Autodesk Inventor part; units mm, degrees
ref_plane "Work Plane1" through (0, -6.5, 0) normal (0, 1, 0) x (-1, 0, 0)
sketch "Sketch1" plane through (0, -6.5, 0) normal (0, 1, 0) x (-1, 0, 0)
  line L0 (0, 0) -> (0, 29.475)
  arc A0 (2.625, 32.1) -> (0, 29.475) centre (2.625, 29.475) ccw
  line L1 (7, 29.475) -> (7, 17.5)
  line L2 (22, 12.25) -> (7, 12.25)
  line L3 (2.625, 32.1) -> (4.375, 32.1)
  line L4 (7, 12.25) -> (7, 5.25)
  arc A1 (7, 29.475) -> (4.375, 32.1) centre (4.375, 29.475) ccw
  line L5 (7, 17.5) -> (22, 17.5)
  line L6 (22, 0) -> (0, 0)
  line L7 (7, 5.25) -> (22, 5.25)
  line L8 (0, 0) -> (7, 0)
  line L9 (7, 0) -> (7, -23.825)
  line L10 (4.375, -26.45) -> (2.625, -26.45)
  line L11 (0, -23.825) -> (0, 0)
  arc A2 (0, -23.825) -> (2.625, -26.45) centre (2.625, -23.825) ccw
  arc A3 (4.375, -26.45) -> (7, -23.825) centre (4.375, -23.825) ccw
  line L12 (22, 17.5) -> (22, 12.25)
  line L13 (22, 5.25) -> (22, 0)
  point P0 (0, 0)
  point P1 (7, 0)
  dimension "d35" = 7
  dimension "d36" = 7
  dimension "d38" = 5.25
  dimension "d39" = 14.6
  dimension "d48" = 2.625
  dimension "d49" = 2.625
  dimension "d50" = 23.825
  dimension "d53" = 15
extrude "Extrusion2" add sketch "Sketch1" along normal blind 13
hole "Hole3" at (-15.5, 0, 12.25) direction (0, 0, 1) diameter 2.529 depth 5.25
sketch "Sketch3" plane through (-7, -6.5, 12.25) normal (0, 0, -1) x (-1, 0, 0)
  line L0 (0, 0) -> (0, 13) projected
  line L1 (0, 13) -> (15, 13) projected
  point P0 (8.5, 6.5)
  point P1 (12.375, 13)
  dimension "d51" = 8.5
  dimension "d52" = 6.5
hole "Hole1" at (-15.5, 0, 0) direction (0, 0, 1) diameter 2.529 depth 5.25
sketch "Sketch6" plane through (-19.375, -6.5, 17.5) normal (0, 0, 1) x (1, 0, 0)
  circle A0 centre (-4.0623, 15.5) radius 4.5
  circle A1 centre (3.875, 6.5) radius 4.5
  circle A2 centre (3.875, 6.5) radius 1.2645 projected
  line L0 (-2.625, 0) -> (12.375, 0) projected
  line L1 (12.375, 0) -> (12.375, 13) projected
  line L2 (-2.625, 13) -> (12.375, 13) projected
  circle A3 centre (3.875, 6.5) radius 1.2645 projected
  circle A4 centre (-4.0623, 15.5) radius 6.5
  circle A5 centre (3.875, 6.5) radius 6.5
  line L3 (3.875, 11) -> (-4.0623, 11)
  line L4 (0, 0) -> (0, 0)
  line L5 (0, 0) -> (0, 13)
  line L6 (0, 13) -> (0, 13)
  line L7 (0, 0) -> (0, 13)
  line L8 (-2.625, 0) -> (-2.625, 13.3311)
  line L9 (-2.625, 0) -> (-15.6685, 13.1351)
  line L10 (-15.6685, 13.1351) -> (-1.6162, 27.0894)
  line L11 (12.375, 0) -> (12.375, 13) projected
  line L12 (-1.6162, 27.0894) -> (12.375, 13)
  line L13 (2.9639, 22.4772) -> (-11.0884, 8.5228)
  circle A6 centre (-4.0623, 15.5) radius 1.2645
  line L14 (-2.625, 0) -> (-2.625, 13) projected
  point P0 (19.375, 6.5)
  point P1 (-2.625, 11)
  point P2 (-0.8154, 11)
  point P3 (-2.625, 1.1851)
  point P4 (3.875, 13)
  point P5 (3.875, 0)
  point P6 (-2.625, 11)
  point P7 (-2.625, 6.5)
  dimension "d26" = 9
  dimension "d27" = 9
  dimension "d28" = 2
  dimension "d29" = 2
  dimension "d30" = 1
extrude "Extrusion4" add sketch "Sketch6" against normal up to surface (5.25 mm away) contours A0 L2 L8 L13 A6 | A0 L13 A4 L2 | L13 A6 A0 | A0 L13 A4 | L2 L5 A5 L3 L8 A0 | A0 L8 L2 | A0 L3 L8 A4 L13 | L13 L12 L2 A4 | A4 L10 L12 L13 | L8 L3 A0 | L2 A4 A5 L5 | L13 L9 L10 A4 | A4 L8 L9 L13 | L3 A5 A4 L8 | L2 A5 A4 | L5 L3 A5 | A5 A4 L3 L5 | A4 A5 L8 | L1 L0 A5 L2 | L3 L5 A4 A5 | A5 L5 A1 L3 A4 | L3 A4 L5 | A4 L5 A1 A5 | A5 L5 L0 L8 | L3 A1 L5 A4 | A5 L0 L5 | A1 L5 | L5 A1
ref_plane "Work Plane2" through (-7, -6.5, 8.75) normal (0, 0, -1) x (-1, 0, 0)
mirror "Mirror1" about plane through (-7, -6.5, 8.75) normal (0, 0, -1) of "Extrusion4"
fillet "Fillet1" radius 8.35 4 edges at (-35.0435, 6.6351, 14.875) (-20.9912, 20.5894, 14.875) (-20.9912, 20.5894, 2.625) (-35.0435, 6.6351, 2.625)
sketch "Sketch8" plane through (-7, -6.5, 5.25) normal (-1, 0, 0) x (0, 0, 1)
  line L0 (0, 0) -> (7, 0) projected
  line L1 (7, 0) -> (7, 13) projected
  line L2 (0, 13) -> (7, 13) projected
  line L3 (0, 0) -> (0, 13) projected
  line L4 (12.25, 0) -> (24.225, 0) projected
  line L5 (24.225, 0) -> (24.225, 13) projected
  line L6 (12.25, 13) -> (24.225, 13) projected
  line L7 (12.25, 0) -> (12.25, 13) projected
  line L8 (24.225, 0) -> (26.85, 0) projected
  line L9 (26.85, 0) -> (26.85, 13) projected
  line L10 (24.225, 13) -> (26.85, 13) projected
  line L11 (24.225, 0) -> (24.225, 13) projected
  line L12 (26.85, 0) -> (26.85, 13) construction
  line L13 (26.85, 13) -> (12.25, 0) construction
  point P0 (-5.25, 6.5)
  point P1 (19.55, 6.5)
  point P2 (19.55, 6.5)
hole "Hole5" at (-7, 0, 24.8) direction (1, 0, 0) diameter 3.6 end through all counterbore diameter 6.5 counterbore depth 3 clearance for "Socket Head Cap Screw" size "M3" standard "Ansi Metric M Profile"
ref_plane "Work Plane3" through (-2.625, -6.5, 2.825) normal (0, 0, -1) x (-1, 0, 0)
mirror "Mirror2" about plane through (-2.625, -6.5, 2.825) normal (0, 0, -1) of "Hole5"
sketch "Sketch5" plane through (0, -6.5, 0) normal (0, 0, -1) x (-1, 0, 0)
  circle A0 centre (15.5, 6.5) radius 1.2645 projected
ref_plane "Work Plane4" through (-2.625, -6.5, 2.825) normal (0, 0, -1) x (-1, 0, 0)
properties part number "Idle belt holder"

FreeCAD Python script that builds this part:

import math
import FreeCAD as App
import Part
import Sketcher

V = App.Vector
Q = App.Units.Quantity


def edges_at(feature, points):
    """Names of the edges that pass closest to the given points."""
    edges = feature.Shape.Edges
    near = lambda p: min(range(len(edges)), key=lambda i: edges[i].distToShape(Part.Vertex(*p))[0])
    return sorted({f"Edge{near(p) + 1}" for p in points})


def add_polygon(sketch, points):
    """Adds a closed chain of lines whose ends are joined by coincident constraints."""
    first, n = sketch.GeometryCount, len(points)
    for a, b in zip(points, points[1:] + points[:1]):
        sketch.addGeometry(Part.LineSegment(App.Vector(*a, 0), App.Vector(*b, 0)), False)
    for i in range(n):
        sketch.addConstraint(Sketcher.Constraint("Coincident", first + i, 2, first + (i + 1) % n, 1))

doc = App.newDocument("Part")
body = doc.addObject("PartDesign::Body", "Body")

# Sketch on XZ plane
sketch1 = doc.addObject("Sketcher::SketchObject", "Sketch")
body.addObject(sketch1)
sketch1.AttachmentSupport = (doc.XZ_Plane, [""])
sketch1.MapMode = "FlatFace"
sketch1.AttachmentOffset = App.Placement(V(0, 0, 6.5), App.Rotation())
sketch1.addGeometry(Part.LineSegment(V(0, 29.5, 0), V(0, -23.8, 0)), False)
sketch1.addGeometry(Part.ArcOfCircle(Part.Circle(V(-2.6, -23.8, 0), V(0, 0, 1), 2.6), math.radians(-90), math.radians(0)), False)
sketch1.addGeometry(Part.LineSegment(V(-2.6, -26.4, 0), V(-4.4, -26.4, 0)), False)
sketch1.addGeometry(Part.ArcOfCircle(Part.Circle(V(-4.4, -23.8, 0), V(0, 0, 1), 2.6), math.radians(180), math.radians(270)), False)
sketch1.addGeometry(Part.LineSegment(V(-7, -23.8, 0), V(-7, 0, 0)), False)
sketch1.addGeometry(Part.LineSegment(V(-7, 0, 0), V(-22, 0, 0)), False)
sketch1.addGeometry(Part.LineSegment(V(-22, 0, 0), V(-22, 5.2, 0)), False)
sketch1.addGeometry(Part.LineSegment(V(-22, 5.2, 0), V(-7, 5.2, 0)), False)
sketch1.addGeometry(Part.LineSegment(V(-7, 5.2, 0), V(-7, 12.2, 0)), False)
sketch1.addGeometry(Part.LineSegment(V(-7, 12.2, 0), V(-22, 12.2, 0)), False)
sketch1.addGeometry(Part.LineSegment(V(-22, 12.2, 0), V(-22, 17.5, 0)), False)
sketch1.addGeometry(Part.LineSegment(V(-22, 17.5, 0), V(-7, 17.5, 0)), False)
sketch1.addGeometry(Part.LineSegment(V(-7, 17.5, 0), V(-7, 29.5, 0)), False)
sketch1.addGeometry(Part.ArcOfCircle(Part.Circle(V(-4.4, 29.5, 0), V(0, 0, 1), 2.6), math.radians(90), math.radians(180)), False)
sketch1.addGeometry(Part.LineSegment(V(-4.4, 32.1, 0), V(-2.6, 32.1, 0)), False)
sketch1.addGeometry(Part.ArcOfCircle(Part.Circle(V(-2.6, 29.5, 0), V(0, 0, 1), 2.6), math.radians(0), math.radians(90)), False)
sketch1.addConstraint(Sketcher.Constraint("Tangent", 0, 2, 1, 2))
sketch1.addConstraint(Sketcher.Constraint("Tangent", 1, 1, 2, 1))
sketch1.addConstraint(Sketcher.Constraint("Tangent", 2, 2, 3, 2))
sketch1.addConstraint(Sketcher.Constraint("Tangent", 3, 1, 4, 1))
sketch1.addConstraint(Sketcher.Constraint("Coincident", 4, 2, 5, 1))
sketch1.addConstraint(Sketcher.Constraint("Coincident", 5, 2, 6, 1))
sketch1.addConstraint(Sketcher.Constraint("Coincident", 6, 2, 7, 1))
sketch1.addConstraint(Sketcher.Constraint("Coincident", 7, 2, 8, 1))
sketch1.addConstraint(Sketcher.Constraint("Coincident", 8, 2, 9, 1))
sketch1.addConstraint(Sketcher.Constraint("Coincident", 9, 2, 10, 1))
sketch1.addConstraint(Sketcher.Constraint("Coincident", 10, 2, 11, 1))
sketch1.addConstraint(Sketcher.Constraint("Coincident", 11, 2, 12, 1))
sketch1.addConstraint(Sketcher.Constraint("Tangent", 12, 2, 13, 2))
sketch1.addConstraint(Sketcher.Constraint("Tangent", 13, 1, 14, 1))
sketch1.addConstraint(Sketcher.Constraint("Tangent", 14, 2, 15, 2))
sketch1.addConstraint(Sketcher.Constraint("Tangent", 15, 1, 0, 1))
sketch1.addConstraint(Sketcher.Constraint("Vertical", 0))
sketch1.addConstraint(Sketcher.Constraint("Horizontal", 2))
sketch1.addConstraint(Sketcher.Constraint("Vertical", 4))
sketch1.addConstraint(Sketcher.Constraint("Horizontal", 5))
sketch1.addConstraint(Sketcher.Constraint("Vertical", 6))
sketch1.addConstraint(Sketcher.Constraint("Horizontal", 7))
sketch1.addConstraint(Sketcher.Constraint("Vertical", 8))
sketch1.addConstraint(Sketcher.Constraint("Horizontal", 9))
sketch1.addConstraint(Sketcher.Constraint("Vertical", 10))
sketch1.addConstraint(Sketcher.Constraint("Horizontal", 11))
sketch1.addConstraint(Sketcher.Constraint("Vertical", 12))
sketch1.addConstraint(Sketcher.Constraint("Horizontal", 14))
sketch1.addConstraint(Sketcher.Constraint("Equal", 1, 3))
sketch1.addConstraint(Sketcher.Constraint("Equal", 3, 13))
sketch1.addConstraint(Sketcher.Constraint("Equal", 13, 15))
sketch1.addConstraint(Sketcher.Constraint("PointOnObject", 0, 2, -2))
sketch1.addConstraint(Sketcher.Constraint("PointOnObject", 4, 2, -1))
sketch1.addConstraint(Sketcher.Constraint("Vertical", 3, 3, 13, 3))
sketch1.addConstraint(Sketcher.Constraint("Vertical", 4, 2, 7, 2))
sketch1.addConstraint(Sketcher.Constraint("Vertical", 6, 2, 9, 2))
sketch1.addConstraint(Sketcher.Constraint("Equal", 6, 10))
sketch1.addConstraint(Sketcher.Constraint("DistanceX", 5, 2, 5, 1, 15.0))
sketch1.addConstraint(Sketcher.Constraint("DistanceY", 8, 1, 8, 2, 7.0))
sketch1.addConstraint(Sketcher.Constraint("DistanceX", 3, 1, -1, 1, 7.0))
sketch1.addConstraint(Sketcher.Constraint("Radius", 1, 2.625))
sketch1.addConstraint(Sketcher.Constraint("DistanceY", 6, 1, 6, 2, 5.25))
sketch1.addConstraint(Sketcher.Constraint("DistanceY", 11, 2, 13, 1, 14.6))
sketch1.addConstraint(Sketcher.Constraint("DistanceY", 4, 1, 4, 2, 23.825))
pad1 = doc.addObject("PartDesign::Pad", "Pad")
body.addObject(pad1)
pad1.Profile = sketch1
pad1.Length = 13
pad1.Reversed = True

# Sketch on XY plane
sketch2 = doc.addObject("Sketcher::SketchObject", "Sketch001")
body.addObject(sketch2)
sketch2.AttachmentSupport = (doc.XY_Plane, [""])
sketch2.MapMode = "FlatFace"
sketch2.AttachmentOffset = App.Placement(V(0, 0, 12.25), App.Rotation())
sketch2.addGeometry(Part.Circle(V(-15.5, 0, 0), V(0, 0, 1), 1.3), False)
sketch2.addConstraint(Sketcher.Constraint("PointOnObject", 0, 3, -1))
sketch2.addConstraint(Sketcher.Constraint("Diameter", 0, 2.529))
sketch2.addConstraint(Sketcher.Constraint("DistanceX", 0, 3, -1, 1, 15.5))
doc.recompute()
hole = doc.addObject("PartDesign::Hole", "Hole")
body.addObject(hole)
hole.Profile = sketch2
hole.ThreadType = "None"
hole.Diameter = 2.529
hole.DepthType = "Dimension"
hole.Depth = 5.25
hole.DrillPoint = "Flat"
hole.Reversed = True

# Sketch on XY plane
sketch3 = doc.addObject("Sketcher::SketchObject", "Sketch002")
body.addObject(sketch3)
sketch3.AttachmentSupport = (doc.XY_Plane, [""])
sketch3.MapMode = "FlatFace"
sketch3.addGeometry(Part.Circle(V(-15.5, 0, 0), V(0, 0, 1), 1.3), False)
sketch3.addConstraint(Sketcher.Constraint("PointOnObject", 0, 3, -1))
sketch3.addConstraint(Sketcher.Constraint("Diameter", 0, 2.529))
sketch3.addConstraint(Sketcher.Constraint("DistanceX", 0, 3, -1, 1, 15.5))
doc.recompute()
hole2 = doc.addObject("PartDesign::Hole", "Hole001")
body.addObject(hole2)
hole2.Profile = sketch3
hole2.ThreadType = "None"
hole2.Diameter = 2.529
hole2.DepthType = "Dimension"
hole2.Depth = 5.25
hole2.DrillPoint = "Flat"
hole2.Reversed = True

# Sketch on XY plane
sketch4 = doc.addObject("Sketcher::SketchObject", "Sketch003")
body.addObject(sketch4)
sketch4.AttachmentSupport = (doc.XY_Plane, [""])
sketch4.MapMode = "FlatFace"
sketch4.AttachmentOffset = App.Placement(V(0, 0, 17.5), App.Rotation())
add_polygon(sketch4, [(-7, 6.5), (-21, 20.6), (-35, 6.6), (-22, -6.5), (-7, -6.5)])  # lines 0-4
sketch4.addGeometry(Part.Circle(V(-23.4, 9, 0), V(0, 0, 1), 1.3), False)  # 5
sketch4.addGeometry(Part.Circle(V(-15.5, 0, 0), V(0, 0, 1), 1.3), False)  # 6
sketch4.addConstraint(Sketcher.Constraint("Horizontal", 3))
sketch4.addConstraint(Sketcher.Constraint("Vertical", 4))
sketch4.addConstraint(Sketcher.Constraint("Equal", 5, 6))
sketch4.addConstraint(Sketcher.Constraint("PointOnObject", 6, 3, -1))
sketch4.addConstraint(Sketcher.Constraint("Perpendicular", 0, 1))
sketch4.addConstraint(Sketcher.Constraint("Perpendicular", 1, 2))
sketch4.addConstraint(Sketcher.Constraint("DistanceY", -1, 1, 5, 3, 9.0))
sketch4.addConstraint(Sketcher.Constraint("DistanceX", 3, 1, 3, 2, 15.0))
sketch4.addConstraint(Sketcher.Constraint("DistanceY", 4, 1, 4, 2, 13.0))
sketch4.addConstraint(Sketcher.Constraint("Diameter", 5, 2.529))
sketch4.addConstraint(Sketcher.Constraint("DistanceX", 2, 2, -1, 1, 22.0))
sketch4.addConstraint(Sketcher.Constraint("Angle", 0, Q("134.7996 deg")))
sketch4.addConstraint(Sketcher.Constraint("DistanceX", 6, 3, -1, 1, 15.5))
sketch4.addConstraint(Sketcher.Constraint("DistanceY", 2, 2, -1, 1, 6.5))
sketch4.addConstraint(Sketcher.Constraint("Distance", 0, 19.856))
sketch4.addConstraint(Sketcher.Constraint("DistanceX", 5, 3, 0, 2, 2.446))
pad2 = doc.addObject("PartDesign::Pad", "Pad001")
body.addObject(pad2)
pad2.Profile = sketch4
pad2.Length = 5.25
pad2.Reversed = True
doc.recompute()

datumplane = doc.addObject("PartDesign::Plane", "DatumPlane")
body.addObject(datumplane)
datumplane.AttachmentSupport = (doc.XY_Plane, [""])
datumplane.MapMode = "FlatFace"
datumplane.AttachmentOffset = App.Placement(V(0, 0, 8.75), App.Rotation())
mirrored = doc.addObject("PartDesign::Mirrored", "Mirrored")
body.addObject(mirrored)
mirrored.Originals = [pad2]
mirrored.MirrorPlane = (datumplane, [""])
body.Tip = mirrored
doc.recompute()

fillet = doc.addObject("PartDesign::Fillet", "Fillet")
body.addObject(fillet)
fillet.Base = (mirrored, edges_at(mirrored, [
    (-35.044, 6.635, 14.875),
    (-20.991, 20.589, 14.875),
    (-20.991, 20.589, 2.625),
    (-35.044, 6.635, 2.625),
]))
fillet.Radius = 8.35

# Sketch on YZ plane
sketch5 = doc.addObject("Sketcher::SketchObject", "Sketch004")
body.addObject(sketch5)
sketch5.AttachmentSupport = (doc.YZ_Plane, [""])
sketch5.MapMode = "FlatFace"
sketch5.AttachmentOffset = App.Placement(V(0, 0, -7), App.Rotation())
sketch5.addGeometry(Part.Circle(V(0, 24.8, 0), V(0, 0, 1), 1.8), False)
sketch5.addConstraint(Sketcher.Constraint("PointOnObject", 0, 3, -2))
sketch5.addConstraint(Sketcher.Constraint("Diameter", 0, 3.6))
sketch5.addConstraint(Sketcher.Constraint("DistanceY", -1, 1, 0, 3, 24.8))
doc.recompute()
hole3 = doc.addObject("PartDesign::Hole", "Hole002")
body.addObject(hole3)
hole3.Profile = sketch5
hole3.ThreadType = "None"
hole3.Diameter = 3.6
hole3.DepthType = "ThroughAll"
hole3.HoleCutType = "Counterbore"
hole3.HoleCutDiameter = 6.5
hole3.HoleCutDepth = 3
hole3.Reversed = True
doc.recompute()

datumplane2 = doc.addObject("PartDesign::Plane", "DatumPlane001")
body.addObject(datumplane2)
datumplane2.AttachmentSupport = (doc.XY_Plane, [""])
datumplane2.MapMode = "FlatFace"
datumplane2.AttachmentOffset = App.Placement(V(0, 0, 2.825), App.Rotation())
mirrored2 = doc.addObject("PartDesign::Mirrored", "Mirrored001")
body.addObject(mirrored2)
mirrored2.Originals = [hole3]
mirrored2.MirrorPlane = (datumplane2, [""])
body.Tip = mirrored2

doc.recompute()
